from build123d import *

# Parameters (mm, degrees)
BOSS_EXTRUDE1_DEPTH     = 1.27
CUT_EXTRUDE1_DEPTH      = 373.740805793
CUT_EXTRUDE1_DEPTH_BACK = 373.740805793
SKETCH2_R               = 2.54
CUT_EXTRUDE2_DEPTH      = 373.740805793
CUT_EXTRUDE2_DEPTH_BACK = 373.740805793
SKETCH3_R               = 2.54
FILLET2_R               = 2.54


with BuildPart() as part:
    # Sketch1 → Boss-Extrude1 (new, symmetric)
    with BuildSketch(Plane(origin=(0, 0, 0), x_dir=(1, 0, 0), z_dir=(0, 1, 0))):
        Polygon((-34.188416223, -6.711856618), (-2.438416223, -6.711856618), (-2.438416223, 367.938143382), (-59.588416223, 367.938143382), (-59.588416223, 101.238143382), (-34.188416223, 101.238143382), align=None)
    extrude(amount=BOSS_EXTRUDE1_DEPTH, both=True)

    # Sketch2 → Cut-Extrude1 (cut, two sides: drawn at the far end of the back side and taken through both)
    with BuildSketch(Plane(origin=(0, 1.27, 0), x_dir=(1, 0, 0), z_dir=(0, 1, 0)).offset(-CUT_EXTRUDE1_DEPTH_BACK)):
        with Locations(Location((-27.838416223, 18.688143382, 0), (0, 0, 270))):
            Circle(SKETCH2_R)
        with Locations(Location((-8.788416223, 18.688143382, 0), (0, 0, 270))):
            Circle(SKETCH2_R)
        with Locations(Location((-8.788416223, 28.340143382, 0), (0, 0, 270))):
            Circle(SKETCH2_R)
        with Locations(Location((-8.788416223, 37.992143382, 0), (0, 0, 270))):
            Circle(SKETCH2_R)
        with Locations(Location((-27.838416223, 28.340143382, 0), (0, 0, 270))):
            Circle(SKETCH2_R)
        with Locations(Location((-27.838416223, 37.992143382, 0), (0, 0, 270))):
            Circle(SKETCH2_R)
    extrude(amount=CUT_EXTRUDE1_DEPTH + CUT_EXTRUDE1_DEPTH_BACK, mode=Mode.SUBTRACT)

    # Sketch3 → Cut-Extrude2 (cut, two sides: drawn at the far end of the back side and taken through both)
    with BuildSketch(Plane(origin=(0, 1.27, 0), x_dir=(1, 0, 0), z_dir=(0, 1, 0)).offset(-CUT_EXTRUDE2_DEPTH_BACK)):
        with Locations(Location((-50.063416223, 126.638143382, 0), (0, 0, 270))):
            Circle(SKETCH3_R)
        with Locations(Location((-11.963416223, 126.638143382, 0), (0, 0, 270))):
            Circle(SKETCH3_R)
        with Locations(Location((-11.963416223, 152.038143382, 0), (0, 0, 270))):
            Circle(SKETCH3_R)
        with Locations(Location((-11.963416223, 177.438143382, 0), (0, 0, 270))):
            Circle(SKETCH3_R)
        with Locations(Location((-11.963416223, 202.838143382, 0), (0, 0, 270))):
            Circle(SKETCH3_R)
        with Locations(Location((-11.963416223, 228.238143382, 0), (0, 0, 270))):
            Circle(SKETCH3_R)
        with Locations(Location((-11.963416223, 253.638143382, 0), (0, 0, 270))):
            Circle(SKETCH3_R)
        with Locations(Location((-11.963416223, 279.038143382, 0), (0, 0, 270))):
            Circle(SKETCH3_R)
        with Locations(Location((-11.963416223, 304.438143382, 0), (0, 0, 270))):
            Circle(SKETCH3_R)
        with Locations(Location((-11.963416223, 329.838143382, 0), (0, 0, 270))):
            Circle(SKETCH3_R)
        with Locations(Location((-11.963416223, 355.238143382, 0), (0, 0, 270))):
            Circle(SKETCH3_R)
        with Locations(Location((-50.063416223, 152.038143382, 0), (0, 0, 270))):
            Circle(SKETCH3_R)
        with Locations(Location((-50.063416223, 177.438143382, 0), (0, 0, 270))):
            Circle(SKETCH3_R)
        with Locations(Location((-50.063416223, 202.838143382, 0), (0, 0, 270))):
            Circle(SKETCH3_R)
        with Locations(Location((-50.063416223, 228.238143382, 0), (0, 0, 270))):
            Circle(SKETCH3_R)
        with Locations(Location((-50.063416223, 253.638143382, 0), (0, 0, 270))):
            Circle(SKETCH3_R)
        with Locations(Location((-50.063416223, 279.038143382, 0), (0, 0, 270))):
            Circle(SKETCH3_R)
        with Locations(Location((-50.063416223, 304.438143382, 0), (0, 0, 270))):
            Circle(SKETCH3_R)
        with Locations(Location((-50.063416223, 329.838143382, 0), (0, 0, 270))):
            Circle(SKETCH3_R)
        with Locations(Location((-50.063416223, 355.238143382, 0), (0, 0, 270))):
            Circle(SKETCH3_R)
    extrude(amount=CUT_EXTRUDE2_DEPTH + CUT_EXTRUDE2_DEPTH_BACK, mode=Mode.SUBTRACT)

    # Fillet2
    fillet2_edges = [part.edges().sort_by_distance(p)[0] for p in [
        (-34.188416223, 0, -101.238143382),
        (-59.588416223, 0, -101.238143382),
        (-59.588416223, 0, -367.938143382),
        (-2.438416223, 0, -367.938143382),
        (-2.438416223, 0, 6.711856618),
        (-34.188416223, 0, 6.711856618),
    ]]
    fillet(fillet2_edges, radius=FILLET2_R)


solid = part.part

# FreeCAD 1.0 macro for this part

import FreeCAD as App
import Part
import Sketcher
Q = App.Units.Quantity


def edges_at(feature, points):
    """Names of the edges that pass closest to the given points."""
    edges = feature.Shape.Edges
    near = lambda p: min(range(len(edges)), key=lambda i: edges[i].distToShape(Part.Vertex(*p))[0])
    return sorted({f"Edge{near(p) + 1}" for p in points})

doc = App.newDocument("Part")
params = doc.addObject("Spreadsheet::Sheet", "Params")
for row, (alias, value) in enumerate([
    ("sketch1_width", "1 in"),
    ("sketch1_height", "10.5 in"),
    ("sketch1_width2", "1.25 in"),
    ("sketch1_height2", "14.75 in"),
    ("pad1_length", "0.1 in"),
    ("sketch2_diameter", "0.2 in"),
    ("sketch3_diameter", "0.2 in"),
    ("fillet_radius", "0.1 in"),
], start=1):
    params.set(f"A{row}", alias)
    params.set(f"B{row}", "=" + value)
    params.setAlias(f"B{row}", alias)

body = doc.addObject("PartDesign::Body", "Body")

sketch1 = body.newObject("Sketcher::SketchObject", "Sketch")
sketch1.AttachmentSupport = (doc.getObject("XZ_Plane"), [""])
sketch1.MapMode = "FlatFace"
sketch1.addGeometry(Part.LineSegment(App.Vector(-34.188416, 6.711857, 0), App.Vector(-2.438416, 6.711857, 0)), False)
sketch1.addGeometry(Part.LineSegment(App.Vector(-2.438416, 6.711857, 0), App.Vector(-2.438416, -367.938143, 0)), False)
sketch1.addGeometry(Part.LineSegment(App.Vector(-2.438416, -367.938143, 0), App.Vector(-59.588416, -367.938143, 0)), False)
sketch1.addGeometry(Part.LineSegment(App.Vector(-59.588416, -367.938143, 0), App.Vector(-59.588416, -101.238143, 0)), False)
sketch1.addGeometry(Part.LineSegment(App.Vector(-59.588416, -101.238143, 0), App.Vector(-34.188416, -101.238143, 0)), False)
sketch1.addGeometry(Part.LineSegment(App.Vector(-34.188416, -101.238143, 0), App.Vector(-34.188416, 6.711857, 0)), False)
sketch1.addConstraint(Sketcher.Constraint("Coincident", 0, 2, 1, 1))
sketch1.addConstraint(Sketcher.Constraint("Coincident", 1, 2, 2, 1))
sketch1.addConstraint(Sketcher.Constraint("Coincident", 2, 2, 3, 1))
sketch1.addConstraint(Sketcher.Constraint("Coincident", 3, 2, 4, 1))
sketch1.addConstraint(Sketcher.Constraint("Coincident", 4, 2, 5, 1))
sketch1.addConstraint(Sketcher.Constraint("Coincident", 5, 2, 0, 1))
sketch1.addConstraint(Sketcher.Constraint("Horizontal", 0))
sketch1.addConstraint(Sketcher.Constraint("Vertical", 1))
sketch1.addConstraint(Sketcher.Constraint("Horizontal", 2))
sketch1.addConstraint(Sketcher.Constraint("Vertical", 3))
sketch1.addConstraint(Sketcher.Constraint("Horizontal", 4))
sketch1.addConstraint(Sketcher.Constraint("Vertical", 5))
sketch1.addConstraint(Sketcher.Constraint("DistanceX", 4, 1, 4, 2, Q("1 in")))
sketch1.addConstraint(Sketcher.Constraint("DistanceY", 3, 1, 3, 2, Q("10.5 in")))
sketch1.addConstraint(Sketcher.Constraint("DistanceX", 0, 1, 0, 2, Q("1.25 in")))
sketch1.addConstraint(Sketcher.Constraint("DistanceY", 1, 2, 1, 1, Q("14.75 in")))
sketch1.addConstraint(Sketcher.Constraint("DistanceX", 0, 2, -1, 1, Q("2.438416 mm")))
sketch1.addConstraint(Sketcher.Constraint("DistanceY", -1, 1, 0, 2, Q("6.711857 mm")))
sketch1.setExpression("Constraints[12]", "Params.sketch1_width")
sketch1.setExpression("Constraints[13]", "Params.sketch1_height")
sketch1.setExpression("Constraints[14]", "Params.sketch1_width2")
sketch1.setExpression("Constraints[15]", "Params.sketch1_height2")
pad1 = body.newObject("PartDesign::Pad", "Pad")
pad1.Profile = sketch1
pad1.setExpression("Length", "Params.pad1_length")
pad1.Midplane = True

sketch2 = body.newObject("Sketcher::SketchObject", "Sketch001")
sketch2.AttachmentSupport = (doc.getObject("XZ_Plane"), [""])
sketch2.MapMode = "FlatFace"
sketch2.AttachmentOffset = App.Placement(App.Vector(0, 0, -0.05 * 25.4), App.Rotation())
sketch2.addGeometry(Part.Circle(App.Vector(-27.838416, -18.688143, 0), App.Vector(0, 0, 1), 2.54), False)
sketch2.addGeometry(Part.Circle(App.Vector(-8.788416, -18.688143, 0), App.Vector(0, 0, 1), 2.54), False)
sketch2.addGeometry(Part.Circle(App.Vector(-8.788416, -28.340143, 0), App.Vector(0, 0, 1), 2.54), False)
sketch2.addGeometry(Part.Circle(App.Vector(-8.788416, -37.992143, 0), App.Vector(0, 0, 1), 2.54), False)
sketch2.addGeometry(Part.Circle(App.Vector(-27.838416, -28.340143, 0), App.Vector(0, 0, 1), 2.54), False)
sketch2.addGeometry(Part.Circle(App.Vector(-27.838416, -37.992143, 0), App.Vector(0, 0, 1), 2.54), False)
sketch2.addConstraint(Sketcher.Constraint("Equal", 0, 1))
sketch2.addConstraint(Sketcher.Constraint("Equal", 1, 2))
sketch2.addConstraint(Sketcher.Constraint("Equal", 2, 3))
sketch2.addConstraint(Sketcher.Constraint("Equal", 3, 4))
sketch2.addConstraint(Sketcher.Constraint("Equal", 4, 5))
sketch2.addConstraint(Sketcher.Constraint("Horizontal", 0, 3, 1, 3))
sketch2.addConstraint(Sketcher.Constraint("Horizontal", 2, 3, 4, 3))
sketch2.addConstraint(Sketcher.Constraint("Horizontal", 3, 3, 5, 3))
sketch2.addConstraint(Sketcher.Constraint("Vertical", 1, 3, 2, 3))
sketch2.addConstraint(Sketcher.Constraint("Vertical", 2, 3, 3, 3))
sketch2.addConstraint(Sketcher.Constraint("Vertical", 0, 3, 4, 3))
sketch2.addConstraint(Sketcher.Constraint("Vertical", 4, 3, 5, 3))
sketch2.addConstraint(Sketcher.Constraint("Diameter", 0, Q("0.2 in")))
sketch2.addConstraint(Sketcher.Constraint("DistanceX", 0, 3, 1, 3, Q("0.75 in")))
sketch2.addConstraint(Sketcher.Constraint("DistanceY", 2, 3, 1, 3, Q("0.38 in")))
sketch2.addConstraint(Sketcher.Constraint("DistanceY", 3, 3, 2, 3, Q("0.38 in")))
sketch2.addConstraint(Sketcher.Constraint("DistanceX", 0, 3, -1, 1, Q("27.838416 mm")))
sketch2.addConstraint(Sketcher.Constraint("DistanceY", 0, 3, -1, 1, Q("18.688143 mm")))
sketch2.setExpression("Constraints[12]", "Params.sketch2_diameter")
pocket1 = body.newObject("PartDesign::Pocket", "Pocket")
pocket1.Profile = sketch2
pocket1.Type = "ThroughAll"
pocket1.Midplane = True

sketch3 = body.newObject("Sketcher::SketchObject", "Sketch002")
sketch3.AttachmentSupport = (doc.getObject("XZ_Plane"), [""])
sketch3.MapMode = "FlatFace"
sketch3.AttachmentOffset = App.Placement(App.Vector(0, 0, -0.05 * 25.4), App.Rotation())
sketch3.addGeometry(Part.Circle(App.Vector(-50.063416, -126.638143, 0), App.Vector(0, 0, 1), 2.54), False)
sketch3.addGeometry(Part.Circle(App.Vector(-11.963416, -126.638143, 0), App.Vector(0, 0, 1), 2.54), False)
sketch3.addGeometry(Part.Circle(App.Vector(-11.963416, -152.038143, 0), App.Vector(0, 0, 1), 2.54), False)
sketch3.addGeometry(Part.Circle(App.Vector(-11.963416, -177.438143, 0), App.Vector(0, 0, 1), 2.54), False)
sketch3.addGeometry(Part.Circle(App.Vector(-11.963416, -202.838143, 0), App.Vector(0, 0, 1), 2.54), False)
sketch3.addGeometry(Part.Circle(App.Vector(-11.963416, -228.238143, 0), App.Vector(0, 0, 1), 2.54), False)
sketch3.addGeometry(Part.Circle(App.Vector(-11.963416, -253.638143, 0), App.Vector(0, 0, 1), 2.54), False)
sketch3.addGeometry(Part.Circle(App.Vector(-11.963416, -279.038143, 0), App.Vector(0, 0, 1), 2.54), False)
sketch3.addGeometry(Part.Circle(App.Vector(-11.963416, -304.438143, 0), App.Vector(0, 0, 1), 2.54), False)
sketch3.addGeometry(Part.Circle(App.Vector(-11.963416, -329.838143, 0), App.Vector(0, 0, 1), 2.54), False)
sketch3.addGeometry(Part.Circle(App.Vector(-11.963416, -355.238143, 0), App.Vector(0, 0, 1), 2.54), False)
sketch3.addGeometry(Part.Circle(App.Vector(-50.063416, -152.038143, 0), App.Vector(0, 0, 1), 2.54), False)
sketch3.addGeometry(Part.Circle(App.Vector(-50.063416, -177.438143, 0), App.Vector(0, 0, 1), 2.54), False)
sketch3.addGeometry(Part.Circle(App.Vector(-50.063416, -202.838143, 0), App.Vector(0, 0, 1), 2.54), False)
sketch3.addGeometry(Part.Circle(App.Vector(-50.063416, -228.238143, 0), App.Vector(0, 0, 1), 2.54), False)
sketch3.addGeometry(Part.Circle(App.Vector(-50.063416, -253.638143, 0), App.Vector(0, 0, 1), 2.54), False)
sketch3.addGeometry(Part.Circle(App.Vector(-50.063416, -279.038143, 0), App.Vector(0, 0, 1), 2.54), False)
sketch3.addGeometry(Part.Circle(App.Vector(-50.063416, -304.438143, 0), App.Vector(0, 0, 1), 2.54), False)
sketch3.addGeometry(Part.Circle(App.Vector(-50.063416, -329.838143, 0), App.Vector(0, 0, 1), 2.54), False)
sketch3.addGeometry(Part.Circle(App.Vector(-50.063416, -355.238143, 0), App.Vector(0, 0, 1), 2.54), False)
sketch3.addConstraint(Sketcher.Constraint("Equal", 0, 1))
sketch3.addConstraint(Sketcher.Constraint("Equal", 1, 2))
sketch3.addConstraint(Sketcher.Constraint("Equal", 2, 3))
sketch3.addConstraint(Sketcher.Constraint("Equal", 3, 4))
sketch3.addConstraint(Sketcher.Constraint("Equal", 4, 5))
sketch3.addConstraint(Sketcher.Constraint("Equal", 5, 6))
sketch3.addConstraint(Sketcher.Constraint("Equal", 6, 7))
sketch3.addConstraint(Sketcher.Constraint("Equal", 7, 8))
sketch3.addConstraint(Sketcher.Constraint("Equal", 8, 9))
sketch3.addConstraint(Sketcher.Constraint("Equal", 9, 10))
sketch3.addConstraint(Sketcher.Constraint("Equal", 10, 11))
sketch3.addConstraint(Sketcher.Constraint("Equal", 11, 12))
sketch3.addConstraint(Sketcher.Constraint("Equal", 12, 13))
sketch3.addConstraint(Sketcher.Constraint("Equal", 13, 14))
sketch3.addConstraint(Sketcher.Constraint("Equal", 14, 15))
sketch3.addConstraint(Sketcher.Constraint("Equal", 15, 16))
sketch3.addConstraint(Sketcher.Constraint("Equal", 16, 17))
sketch3.addConstraint(Sketcher.Constraint("Equal", 17, 18))
sketch3.addConstraint(Sketcher.Constraint("Equal", 18, 19))
sketch3.addConstraint(Sketcher.Constraint("Horizontal", 0, 3, 1, 3))
sketch3.addConstraint(Sketcher.Constraint("Horizontal", 2, 3, 11, 3))
sketch3.addConstraint(Sketcher.Constraint("Horizontal", 3, 3, 12, 3))
sketch3.addConstraint(Sketcher.Constraint("Horizontal", 4, 3, 13, 3))
sketch3.addConstraint(Sketcher.Constraint("Horizontal", 5, 3, 14, 3))
sketch3.addConstraint(Sketcher.Constraint("Horizontal", 6, 3, 15, 3))
sketch3.addConstraint(Sketcher.Constraint("Horizontal", 7, 3, 16, 3))
sketch3.addConstraint(Sketcher.Constraint("Horizontal", 8, 3, 17, 3))
sketch3.addConstraint(Sketcher.Constraint("Horizontal", 9, 3, 18, 3))
sketch3.addConstraint(Sketcher.Constraint("Horizontal", 10, 3, 19, 3))
sketch3.addConstraint(Sketcher.Constraint("Vertical", 1, 3, 2, 3))
sketch3.addConstraint(Sketcher.Constraint("Vertical", 2, 3, 3, 3))
sketch3.addConstraint(Sketcher.Constraint("Vertical", 3, 3, 4, 3))
sketch3.addConstraint(Sketcher.Constraint("Vertical", 4, 3, 5, 3))
sketch3.addConstraint(Sketcher.Constraint("Vertical", 5, 3, 6, 3))
sketch3.addConstraint(Sketcher.Constraint("Vertical", 6, 3, 7, 3))
sketch3.addConstraint(Sketcher.Constraint("Vertical", 7, 3, 8, 3))
sketch3.addConstraint(Sketcher.Constraint("Vertical", 8, 3, 9, 3))
sketch3.addConstraint(Sketcher.Constraint("Vertical", 9, 3, 10, 3))
sketch3.addConstraint(Sketcher.Constraint("Vertical", 0, 3, 11, 3))
sketch3.addConstraint(Sketcher.Constraint("Vertical", 11, 3, 12, 3))
sketch3.addConstraint(Sketcher.Constraint("Vertical", 12, 3, 13, 3))
sketch3.addConstraint(Sketcher.Constraint("Vertical", 13, 3, 14, 3))
sketch3.addConstraint(Sketcher.Constraint("Vertical", 14, 3, 15, 3))
sketch3.addConstraint(Sketcher.Constraint("Vertical", 15, 3, 16, 3))
sketch3.addConstraint(Sketcher.Constraint("Vertical", 16, 3, 17, 3))
sketch3.addConstraint(Sketcher.Constraint("Vertical", 17, 3, 18, 3))
sketch3.addConstraint(Sketcher.Constraint("Vertical", 18, 3, 19, 3))
sketch3.addConstraint(Sketcher.Constraint("Diameter", 0, Q("0.2 in")))
sketch3.addConstraint(Sketcher.Constraint("DistanceY", 2, 3, 1, 3, Q("1 in")))
sketch3.addConstraint(Sketcher.Constraint("DistanceY", 3, 3, 2, 3, Q("1 in")))
sketch3.addConstraint(Sketcher.Constraint("DistanceY", 4, 3, 3, 3, Q("1 in")))
sketch3.addConstraint(Sketcher.Constraint("DistanceY", 5, 3, 4, 3, Q("1 in")))
sketch3.addConstraint(Sketcher.Constraint("DistanceY", 6, 3, 5, 3, Q("1 in")))
sketch3.addConstraint(Sketcher.Constraint("DistanceY", 7, 3, 6, 3, Q("1 in")))
sketch3.addConstraint(Sketcher.Constraint("DistanceY", 8, 3, 7, 3, Q("1 in")))
sketch3.addConstraint(Sketcher.Constraint("DistanceY", 9, 3, 8, 3, Q("1 in")))
sketch3.addConstraint(Sketcher.Constraint("DistanceY", 10, 3, 9, 3, Q("1 in")))
sketch3.addConstraint(Sketcher.Constraint("DistanceX", 0, 3, 1, 3, Q("1.5 in")))
sketch3.addConstraint(Sketcher.Constraint("DistanceX", 0, 3, -1, 1, Q("50.063416 mm")))
sketch3.addConstraint(Sketcher.Constraint("DistanceY", 0, 3, -1, 1, Q("126.638143 mm")))
sketch3.setExpression("Constraints[47]", "Params.sketch3_diameter")
pocket2 = body.newObject("PartDesign::Pocket", "Pocket001")
pocket2.Profile = sketch3
pocket2.Type = "ThroughAll"
pocket2.Midplane = True
doc.recompute()

fillet = body.newObject("PartDesign::Fillet", "Fillet")
fillet.Base = (pocket2, edges_at(pocket2, [
    (-34.188, 0, -101.238),
    (-59.588, 0, -101.238),
    (-59.588, 0, -367.938),
    (-2.438, 0, -367.938),
    (-2.438, 0, 6.712),
    (-34.188, 0, 6.712),
]))
fillet.setExpression("Radius", "Params.fillet_radius")

doc.recompute()
